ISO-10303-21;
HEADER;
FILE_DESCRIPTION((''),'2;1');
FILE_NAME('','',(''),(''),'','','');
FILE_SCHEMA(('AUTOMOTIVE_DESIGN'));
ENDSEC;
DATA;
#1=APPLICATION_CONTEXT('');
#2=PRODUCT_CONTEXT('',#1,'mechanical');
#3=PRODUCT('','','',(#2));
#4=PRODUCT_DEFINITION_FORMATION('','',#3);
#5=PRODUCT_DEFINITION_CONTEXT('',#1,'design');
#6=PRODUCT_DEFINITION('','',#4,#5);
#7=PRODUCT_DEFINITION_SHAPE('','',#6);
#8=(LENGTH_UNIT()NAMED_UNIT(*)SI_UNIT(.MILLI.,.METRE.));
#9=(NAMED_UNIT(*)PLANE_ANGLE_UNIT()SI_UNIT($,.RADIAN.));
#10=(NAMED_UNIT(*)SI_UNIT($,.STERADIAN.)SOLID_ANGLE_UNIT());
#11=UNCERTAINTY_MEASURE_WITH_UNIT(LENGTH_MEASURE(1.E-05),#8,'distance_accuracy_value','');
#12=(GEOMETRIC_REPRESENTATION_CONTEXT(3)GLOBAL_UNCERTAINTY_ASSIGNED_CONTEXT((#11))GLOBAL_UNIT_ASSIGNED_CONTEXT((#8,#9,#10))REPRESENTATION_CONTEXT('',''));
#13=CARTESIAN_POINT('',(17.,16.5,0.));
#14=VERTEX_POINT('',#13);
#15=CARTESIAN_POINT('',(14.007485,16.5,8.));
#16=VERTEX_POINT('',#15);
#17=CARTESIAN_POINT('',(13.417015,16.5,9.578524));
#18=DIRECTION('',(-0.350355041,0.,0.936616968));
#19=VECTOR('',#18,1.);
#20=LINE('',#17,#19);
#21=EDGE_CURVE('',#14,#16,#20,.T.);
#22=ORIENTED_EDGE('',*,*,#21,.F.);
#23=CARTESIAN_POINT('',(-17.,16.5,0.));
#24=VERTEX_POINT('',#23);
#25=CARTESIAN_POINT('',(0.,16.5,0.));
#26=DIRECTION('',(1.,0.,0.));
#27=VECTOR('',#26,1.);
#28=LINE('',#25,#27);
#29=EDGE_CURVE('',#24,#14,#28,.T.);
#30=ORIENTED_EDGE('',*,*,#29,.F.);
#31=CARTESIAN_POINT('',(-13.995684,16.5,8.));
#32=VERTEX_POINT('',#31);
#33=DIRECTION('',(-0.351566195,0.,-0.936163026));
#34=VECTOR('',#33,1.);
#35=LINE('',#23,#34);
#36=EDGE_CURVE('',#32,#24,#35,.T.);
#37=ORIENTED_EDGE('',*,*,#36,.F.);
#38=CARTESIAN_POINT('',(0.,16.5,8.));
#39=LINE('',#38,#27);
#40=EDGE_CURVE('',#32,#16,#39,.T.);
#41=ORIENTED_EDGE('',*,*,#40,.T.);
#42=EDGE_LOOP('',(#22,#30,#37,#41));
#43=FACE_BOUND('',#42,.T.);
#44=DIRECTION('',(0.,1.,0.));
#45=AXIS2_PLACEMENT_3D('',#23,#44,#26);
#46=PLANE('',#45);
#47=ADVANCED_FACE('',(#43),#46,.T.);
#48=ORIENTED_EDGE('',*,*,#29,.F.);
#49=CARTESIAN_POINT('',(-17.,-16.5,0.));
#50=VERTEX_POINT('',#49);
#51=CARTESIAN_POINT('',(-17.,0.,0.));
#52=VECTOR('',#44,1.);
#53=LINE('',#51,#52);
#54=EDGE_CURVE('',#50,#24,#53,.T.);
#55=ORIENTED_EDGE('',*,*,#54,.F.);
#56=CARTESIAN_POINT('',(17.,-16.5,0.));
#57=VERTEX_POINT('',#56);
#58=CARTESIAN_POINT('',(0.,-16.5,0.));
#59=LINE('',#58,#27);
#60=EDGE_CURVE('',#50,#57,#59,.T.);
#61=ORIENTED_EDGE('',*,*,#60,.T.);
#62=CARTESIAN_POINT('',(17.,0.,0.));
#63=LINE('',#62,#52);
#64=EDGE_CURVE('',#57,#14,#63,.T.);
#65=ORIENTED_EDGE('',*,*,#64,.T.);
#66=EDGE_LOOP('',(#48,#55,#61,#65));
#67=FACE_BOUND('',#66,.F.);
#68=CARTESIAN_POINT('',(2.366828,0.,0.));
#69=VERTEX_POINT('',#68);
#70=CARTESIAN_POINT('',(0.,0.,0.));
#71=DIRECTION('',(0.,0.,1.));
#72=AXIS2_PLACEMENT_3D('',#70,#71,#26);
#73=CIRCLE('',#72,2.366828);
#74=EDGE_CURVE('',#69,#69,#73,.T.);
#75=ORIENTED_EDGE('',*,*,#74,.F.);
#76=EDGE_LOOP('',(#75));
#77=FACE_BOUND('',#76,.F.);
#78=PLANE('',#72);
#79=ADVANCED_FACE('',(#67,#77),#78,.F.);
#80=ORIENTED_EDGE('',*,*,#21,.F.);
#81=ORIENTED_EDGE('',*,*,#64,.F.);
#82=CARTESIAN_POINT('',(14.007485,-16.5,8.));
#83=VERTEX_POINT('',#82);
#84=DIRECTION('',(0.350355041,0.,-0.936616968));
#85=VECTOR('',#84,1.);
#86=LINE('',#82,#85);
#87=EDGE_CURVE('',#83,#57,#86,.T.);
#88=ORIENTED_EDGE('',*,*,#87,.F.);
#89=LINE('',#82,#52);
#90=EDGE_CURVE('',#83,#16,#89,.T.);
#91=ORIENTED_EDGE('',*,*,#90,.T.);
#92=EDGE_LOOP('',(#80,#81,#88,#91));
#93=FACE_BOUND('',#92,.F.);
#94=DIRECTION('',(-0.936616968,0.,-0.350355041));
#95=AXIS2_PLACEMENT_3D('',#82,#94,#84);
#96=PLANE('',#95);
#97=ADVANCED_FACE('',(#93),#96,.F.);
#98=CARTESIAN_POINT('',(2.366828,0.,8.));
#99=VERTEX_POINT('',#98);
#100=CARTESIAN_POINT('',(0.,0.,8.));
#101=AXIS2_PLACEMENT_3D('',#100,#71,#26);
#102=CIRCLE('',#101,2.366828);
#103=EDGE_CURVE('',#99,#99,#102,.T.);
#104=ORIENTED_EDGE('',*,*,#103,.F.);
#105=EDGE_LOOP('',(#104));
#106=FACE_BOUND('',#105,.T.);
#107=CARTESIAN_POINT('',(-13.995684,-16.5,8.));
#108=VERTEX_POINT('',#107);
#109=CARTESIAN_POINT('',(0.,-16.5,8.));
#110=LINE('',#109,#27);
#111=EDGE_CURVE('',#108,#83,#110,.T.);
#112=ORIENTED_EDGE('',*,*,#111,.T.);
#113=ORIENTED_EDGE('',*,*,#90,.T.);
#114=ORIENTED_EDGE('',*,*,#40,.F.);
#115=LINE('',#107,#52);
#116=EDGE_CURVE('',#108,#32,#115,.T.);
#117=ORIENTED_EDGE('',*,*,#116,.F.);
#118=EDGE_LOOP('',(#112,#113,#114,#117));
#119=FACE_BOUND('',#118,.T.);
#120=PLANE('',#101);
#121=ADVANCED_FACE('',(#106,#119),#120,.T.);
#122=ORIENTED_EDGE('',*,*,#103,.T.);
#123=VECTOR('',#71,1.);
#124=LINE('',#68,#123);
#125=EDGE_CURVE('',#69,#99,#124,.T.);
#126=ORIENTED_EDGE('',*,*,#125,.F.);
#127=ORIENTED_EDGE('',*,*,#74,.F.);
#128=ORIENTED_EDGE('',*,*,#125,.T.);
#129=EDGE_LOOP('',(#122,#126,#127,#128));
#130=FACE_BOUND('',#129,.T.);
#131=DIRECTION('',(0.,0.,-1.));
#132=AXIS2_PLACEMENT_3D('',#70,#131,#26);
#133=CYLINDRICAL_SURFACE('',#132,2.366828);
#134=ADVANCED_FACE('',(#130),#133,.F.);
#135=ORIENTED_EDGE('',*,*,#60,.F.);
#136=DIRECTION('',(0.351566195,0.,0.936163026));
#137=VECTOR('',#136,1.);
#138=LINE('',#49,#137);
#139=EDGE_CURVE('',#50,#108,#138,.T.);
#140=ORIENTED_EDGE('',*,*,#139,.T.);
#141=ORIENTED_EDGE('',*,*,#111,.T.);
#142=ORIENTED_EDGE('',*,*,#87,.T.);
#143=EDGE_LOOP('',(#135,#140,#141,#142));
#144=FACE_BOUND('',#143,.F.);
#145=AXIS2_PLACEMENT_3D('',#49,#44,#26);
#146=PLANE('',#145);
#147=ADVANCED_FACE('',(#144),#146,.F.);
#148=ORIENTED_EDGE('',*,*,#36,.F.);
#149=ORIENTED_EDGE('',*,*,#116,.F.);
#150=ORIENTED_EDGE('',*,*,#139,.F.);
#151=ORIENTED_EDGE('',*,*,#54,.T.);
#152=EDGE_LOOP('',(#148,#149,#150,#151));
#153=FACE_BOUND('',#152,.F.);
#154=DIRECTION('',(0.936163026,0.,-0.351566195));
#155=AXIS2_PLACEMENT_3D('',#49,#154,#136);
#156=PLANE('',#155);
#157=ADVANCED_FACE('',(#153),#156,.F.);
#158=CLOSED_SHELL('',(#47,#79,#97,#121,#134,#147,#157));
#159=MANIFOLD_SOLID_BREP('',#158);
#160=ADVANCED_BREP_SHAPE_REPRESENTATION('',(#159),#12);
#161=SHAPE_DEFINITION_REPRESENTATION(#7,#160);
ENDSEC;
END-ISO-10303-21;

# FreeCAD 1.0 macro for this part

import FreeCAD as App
import Part
import Sketcher
Q = App.Units.Quantity

doc = App.newDocument("Part")
params = doc.addObject("Spreadsheet::Sheet", "Params")
for row, (alias, value) in enumerate([
    ("sketch1_width", "34 mm"),
    ("sketch1_height", "33 mm"),
    ("pad1_length", "8 mm"),
    ("sketch2_height", "8 mm"),
    ("pocket1_length", "35 mm"),
], start=1):
    params.set(f"A{row}", alias)
    params.set(f"B{row}", "=" + value)
    params.setAlias(f"B{row}", alias)

body = doc.addObject("PartDesign::Body", "Body")

# Sketch on XY plane
sketch1 = body.newObject("Sketcher::SketchObject", "Sketch")
sketch1.AttachmentSupport = (doc.getObject("XY_Plane"), [""])
sketch1.MapMode = "FlatFace"
sketch1.addGeometry(Part.LineSegment(App.Vector(-17, 16.5, 0), App.Vector(-17, -16.5, 0)), False)
sketch1.addGeometry(Part.LineSegment(App.Vector(-17, -16.5, 0), App.Vector(17, -16.5, 0)), False)
sketch1.addGeometry(Part.LineSegment(App.Vector(17, -16.5, 0), App.Vector(17, 16.5, 0)), False)
sketch1.addGeometry(Part.LineSegment(App.Vector(17, 16.5, 0), App.Vector(-17, 16.5, 0)), False)
sketch1.addGeometry(Part.Circle(App.Vector(0, 0, 0), App.Vector(0, 0, 1), 2.4), False)
sketch1.addConstraint(Sketcher.Constraint("Coincident", 0, 2, 1, 1))
sketch1.addConstraint(Sketcher.Constraint("Coincident", 1, 2, 2, 1))
sketch1.addConstraint(Sketcher.Constraint("Coincident", 2, 2, 3, 1))
sketch1.addConstraint(Sketcher.Constraint("Coincident", 3, 2, 0, 1))
sketch1.addConstraint(Sketcher.Constraint("Vertical", 0))
sketch1.addConstraint(Sketcher.Constraint("Horizontal", 1))
sketch1.addConstraint(Sketcher.Constraint("Vertical", 2))
sketch1.addConstraint(Sketcher.Constraint("Horizontal", 3))
sketch1.addConstraint(Sketcher.Constraint("Coincident", 4, 3, -1, 1))
sketch1.addConstraint(Sketcher.Constraint("Symmetric", 0, 2, 2, 2, -1, 1))
sketch1.addConstraint(Sketcher.Constraint("DistanceX", 1, 1, 1, 2, Q("34 mm")))
sketch1.addConstraint(Sketcher.Constraint("DistanceY", 0, 2, 0, 1, Q("33 mm")))
sketch1.addConstraint(Sketcher.Constraint("Diameter", 4, Q("4.733656 mm")))
sketch1.setExpression("Constraints[10]", "Params.sketch1_width")
sketch1.setExpression("Constraints[11]", "Params.sketch1_height")
pad1 = body.newObject("PartDesign::Pad", "Pad")
pad1.Profile = sketch1
pad1.setExpression("Length", "Params.pad1_length")

# Sketch on XZ plane
sketch2 = body.newObject("Sketcher::SketchObject", "Sketch001")
sketch2.AttachmentSupport = (doc.getObject("XZ_Plane"), [""])
sketch2.MapMode = "FlatFace"
sketch2.AttachmentOffset = App.Placement(App.Vector(0, 0, 16.5), App.Rotation())
sketch2.addGeometry(Part.LineSegment(App.Vector(-17, 0, 0), App.Vector(-14, 8, 0)), False)
sketch2.addGeometry(Part.LineSegment(App.Vector(-14, 8, 0), App.Vector(-17, 8, 0)), False)
sketch2.addGeometry(Part.LineSegment(App.Vector(-17, 8, 0), App.Vector(-17, 0, 0)), False)
sketch2.addGeometry(Part.LineSegment(App.Vector(17, 8, 0), App.Vector(14, 8, 0)), False)
sketch2.addGeometry(Part.LineSegment(App.Vector(14, 8, 0), App.Vector(17, 0, 0)), False)
sketch2.addGeometry(Part.LineSegment(App.Vector(17, 0, 0), App.Vector(17, 8, 0)), False)
sketch2.addConstraint(Sketcher.Constraint("Coincident", 0, 2, 1, 1))
sketch2.addConstraint(Sketcher.Constraint("Coincident", 1, 2, 2, 1))
sketch2.addConstraint(Sketcher.Constraint("Coincident", 2, 2, 0, 1))
sketch2.addConstraint(Sketcher.Constraint("Coincident", 3, 2, 4, 1))
sketch2.addConstraint(Sketcher.Constraint("Coincident", 4, 2, 5, 1))
sketch2.addConstraint(Sketcher.Constraint("Coincident", 5, 2, 3, 1))
sketch2.addConstraint(Sketcher.Constraint("Horizontal", 1))
sketch2.addConstraint(Sketcher.Constraint("Vertical", 2))
sketch2.addConstraint(Sketcher.Constraint("Horizontal", 3))
sketch2.addConstraint(Sketcher.Constraint("Vertical", 5))
sketch2.addConstraint(Sketcher.Constraint("Symmetric", 2, 2, 4, 2, -1, 1))
sketch2.addConstraint(Sketcher.Constraint("PointOnObject", 2, 2, -1))
sketch2.addConstraint(Sketcher.Constraint("Horizontal", 1, 2, 3, 2))
sketch2.addConstraint(Sketcher.Constraint("DistanceY", 2, 2, 2, 1, Q("8 mm")))
sketch2.addConstraint(Sketcher.Constraint("DistanceX", 1, 2, -1, 1, Q("17 mm")))
sketch2.addConstraint(Sketcher.Constraint("Distance", 0, Q("8.54552 mm")))
sketch2.addConstraint(Sketcher.Constraint("Distance", 4, Q("8.541378 mm")))
sketch2.setExpression("Constraints[13]", "Params.sketch2_height")
pocket1 = body.newObject("PartDesign::Pocket", "Pocket")
pocket1.Profile = sketch2
pocket1.setExpression("Length", "Params.pocket1_length")

doc.recompute()
